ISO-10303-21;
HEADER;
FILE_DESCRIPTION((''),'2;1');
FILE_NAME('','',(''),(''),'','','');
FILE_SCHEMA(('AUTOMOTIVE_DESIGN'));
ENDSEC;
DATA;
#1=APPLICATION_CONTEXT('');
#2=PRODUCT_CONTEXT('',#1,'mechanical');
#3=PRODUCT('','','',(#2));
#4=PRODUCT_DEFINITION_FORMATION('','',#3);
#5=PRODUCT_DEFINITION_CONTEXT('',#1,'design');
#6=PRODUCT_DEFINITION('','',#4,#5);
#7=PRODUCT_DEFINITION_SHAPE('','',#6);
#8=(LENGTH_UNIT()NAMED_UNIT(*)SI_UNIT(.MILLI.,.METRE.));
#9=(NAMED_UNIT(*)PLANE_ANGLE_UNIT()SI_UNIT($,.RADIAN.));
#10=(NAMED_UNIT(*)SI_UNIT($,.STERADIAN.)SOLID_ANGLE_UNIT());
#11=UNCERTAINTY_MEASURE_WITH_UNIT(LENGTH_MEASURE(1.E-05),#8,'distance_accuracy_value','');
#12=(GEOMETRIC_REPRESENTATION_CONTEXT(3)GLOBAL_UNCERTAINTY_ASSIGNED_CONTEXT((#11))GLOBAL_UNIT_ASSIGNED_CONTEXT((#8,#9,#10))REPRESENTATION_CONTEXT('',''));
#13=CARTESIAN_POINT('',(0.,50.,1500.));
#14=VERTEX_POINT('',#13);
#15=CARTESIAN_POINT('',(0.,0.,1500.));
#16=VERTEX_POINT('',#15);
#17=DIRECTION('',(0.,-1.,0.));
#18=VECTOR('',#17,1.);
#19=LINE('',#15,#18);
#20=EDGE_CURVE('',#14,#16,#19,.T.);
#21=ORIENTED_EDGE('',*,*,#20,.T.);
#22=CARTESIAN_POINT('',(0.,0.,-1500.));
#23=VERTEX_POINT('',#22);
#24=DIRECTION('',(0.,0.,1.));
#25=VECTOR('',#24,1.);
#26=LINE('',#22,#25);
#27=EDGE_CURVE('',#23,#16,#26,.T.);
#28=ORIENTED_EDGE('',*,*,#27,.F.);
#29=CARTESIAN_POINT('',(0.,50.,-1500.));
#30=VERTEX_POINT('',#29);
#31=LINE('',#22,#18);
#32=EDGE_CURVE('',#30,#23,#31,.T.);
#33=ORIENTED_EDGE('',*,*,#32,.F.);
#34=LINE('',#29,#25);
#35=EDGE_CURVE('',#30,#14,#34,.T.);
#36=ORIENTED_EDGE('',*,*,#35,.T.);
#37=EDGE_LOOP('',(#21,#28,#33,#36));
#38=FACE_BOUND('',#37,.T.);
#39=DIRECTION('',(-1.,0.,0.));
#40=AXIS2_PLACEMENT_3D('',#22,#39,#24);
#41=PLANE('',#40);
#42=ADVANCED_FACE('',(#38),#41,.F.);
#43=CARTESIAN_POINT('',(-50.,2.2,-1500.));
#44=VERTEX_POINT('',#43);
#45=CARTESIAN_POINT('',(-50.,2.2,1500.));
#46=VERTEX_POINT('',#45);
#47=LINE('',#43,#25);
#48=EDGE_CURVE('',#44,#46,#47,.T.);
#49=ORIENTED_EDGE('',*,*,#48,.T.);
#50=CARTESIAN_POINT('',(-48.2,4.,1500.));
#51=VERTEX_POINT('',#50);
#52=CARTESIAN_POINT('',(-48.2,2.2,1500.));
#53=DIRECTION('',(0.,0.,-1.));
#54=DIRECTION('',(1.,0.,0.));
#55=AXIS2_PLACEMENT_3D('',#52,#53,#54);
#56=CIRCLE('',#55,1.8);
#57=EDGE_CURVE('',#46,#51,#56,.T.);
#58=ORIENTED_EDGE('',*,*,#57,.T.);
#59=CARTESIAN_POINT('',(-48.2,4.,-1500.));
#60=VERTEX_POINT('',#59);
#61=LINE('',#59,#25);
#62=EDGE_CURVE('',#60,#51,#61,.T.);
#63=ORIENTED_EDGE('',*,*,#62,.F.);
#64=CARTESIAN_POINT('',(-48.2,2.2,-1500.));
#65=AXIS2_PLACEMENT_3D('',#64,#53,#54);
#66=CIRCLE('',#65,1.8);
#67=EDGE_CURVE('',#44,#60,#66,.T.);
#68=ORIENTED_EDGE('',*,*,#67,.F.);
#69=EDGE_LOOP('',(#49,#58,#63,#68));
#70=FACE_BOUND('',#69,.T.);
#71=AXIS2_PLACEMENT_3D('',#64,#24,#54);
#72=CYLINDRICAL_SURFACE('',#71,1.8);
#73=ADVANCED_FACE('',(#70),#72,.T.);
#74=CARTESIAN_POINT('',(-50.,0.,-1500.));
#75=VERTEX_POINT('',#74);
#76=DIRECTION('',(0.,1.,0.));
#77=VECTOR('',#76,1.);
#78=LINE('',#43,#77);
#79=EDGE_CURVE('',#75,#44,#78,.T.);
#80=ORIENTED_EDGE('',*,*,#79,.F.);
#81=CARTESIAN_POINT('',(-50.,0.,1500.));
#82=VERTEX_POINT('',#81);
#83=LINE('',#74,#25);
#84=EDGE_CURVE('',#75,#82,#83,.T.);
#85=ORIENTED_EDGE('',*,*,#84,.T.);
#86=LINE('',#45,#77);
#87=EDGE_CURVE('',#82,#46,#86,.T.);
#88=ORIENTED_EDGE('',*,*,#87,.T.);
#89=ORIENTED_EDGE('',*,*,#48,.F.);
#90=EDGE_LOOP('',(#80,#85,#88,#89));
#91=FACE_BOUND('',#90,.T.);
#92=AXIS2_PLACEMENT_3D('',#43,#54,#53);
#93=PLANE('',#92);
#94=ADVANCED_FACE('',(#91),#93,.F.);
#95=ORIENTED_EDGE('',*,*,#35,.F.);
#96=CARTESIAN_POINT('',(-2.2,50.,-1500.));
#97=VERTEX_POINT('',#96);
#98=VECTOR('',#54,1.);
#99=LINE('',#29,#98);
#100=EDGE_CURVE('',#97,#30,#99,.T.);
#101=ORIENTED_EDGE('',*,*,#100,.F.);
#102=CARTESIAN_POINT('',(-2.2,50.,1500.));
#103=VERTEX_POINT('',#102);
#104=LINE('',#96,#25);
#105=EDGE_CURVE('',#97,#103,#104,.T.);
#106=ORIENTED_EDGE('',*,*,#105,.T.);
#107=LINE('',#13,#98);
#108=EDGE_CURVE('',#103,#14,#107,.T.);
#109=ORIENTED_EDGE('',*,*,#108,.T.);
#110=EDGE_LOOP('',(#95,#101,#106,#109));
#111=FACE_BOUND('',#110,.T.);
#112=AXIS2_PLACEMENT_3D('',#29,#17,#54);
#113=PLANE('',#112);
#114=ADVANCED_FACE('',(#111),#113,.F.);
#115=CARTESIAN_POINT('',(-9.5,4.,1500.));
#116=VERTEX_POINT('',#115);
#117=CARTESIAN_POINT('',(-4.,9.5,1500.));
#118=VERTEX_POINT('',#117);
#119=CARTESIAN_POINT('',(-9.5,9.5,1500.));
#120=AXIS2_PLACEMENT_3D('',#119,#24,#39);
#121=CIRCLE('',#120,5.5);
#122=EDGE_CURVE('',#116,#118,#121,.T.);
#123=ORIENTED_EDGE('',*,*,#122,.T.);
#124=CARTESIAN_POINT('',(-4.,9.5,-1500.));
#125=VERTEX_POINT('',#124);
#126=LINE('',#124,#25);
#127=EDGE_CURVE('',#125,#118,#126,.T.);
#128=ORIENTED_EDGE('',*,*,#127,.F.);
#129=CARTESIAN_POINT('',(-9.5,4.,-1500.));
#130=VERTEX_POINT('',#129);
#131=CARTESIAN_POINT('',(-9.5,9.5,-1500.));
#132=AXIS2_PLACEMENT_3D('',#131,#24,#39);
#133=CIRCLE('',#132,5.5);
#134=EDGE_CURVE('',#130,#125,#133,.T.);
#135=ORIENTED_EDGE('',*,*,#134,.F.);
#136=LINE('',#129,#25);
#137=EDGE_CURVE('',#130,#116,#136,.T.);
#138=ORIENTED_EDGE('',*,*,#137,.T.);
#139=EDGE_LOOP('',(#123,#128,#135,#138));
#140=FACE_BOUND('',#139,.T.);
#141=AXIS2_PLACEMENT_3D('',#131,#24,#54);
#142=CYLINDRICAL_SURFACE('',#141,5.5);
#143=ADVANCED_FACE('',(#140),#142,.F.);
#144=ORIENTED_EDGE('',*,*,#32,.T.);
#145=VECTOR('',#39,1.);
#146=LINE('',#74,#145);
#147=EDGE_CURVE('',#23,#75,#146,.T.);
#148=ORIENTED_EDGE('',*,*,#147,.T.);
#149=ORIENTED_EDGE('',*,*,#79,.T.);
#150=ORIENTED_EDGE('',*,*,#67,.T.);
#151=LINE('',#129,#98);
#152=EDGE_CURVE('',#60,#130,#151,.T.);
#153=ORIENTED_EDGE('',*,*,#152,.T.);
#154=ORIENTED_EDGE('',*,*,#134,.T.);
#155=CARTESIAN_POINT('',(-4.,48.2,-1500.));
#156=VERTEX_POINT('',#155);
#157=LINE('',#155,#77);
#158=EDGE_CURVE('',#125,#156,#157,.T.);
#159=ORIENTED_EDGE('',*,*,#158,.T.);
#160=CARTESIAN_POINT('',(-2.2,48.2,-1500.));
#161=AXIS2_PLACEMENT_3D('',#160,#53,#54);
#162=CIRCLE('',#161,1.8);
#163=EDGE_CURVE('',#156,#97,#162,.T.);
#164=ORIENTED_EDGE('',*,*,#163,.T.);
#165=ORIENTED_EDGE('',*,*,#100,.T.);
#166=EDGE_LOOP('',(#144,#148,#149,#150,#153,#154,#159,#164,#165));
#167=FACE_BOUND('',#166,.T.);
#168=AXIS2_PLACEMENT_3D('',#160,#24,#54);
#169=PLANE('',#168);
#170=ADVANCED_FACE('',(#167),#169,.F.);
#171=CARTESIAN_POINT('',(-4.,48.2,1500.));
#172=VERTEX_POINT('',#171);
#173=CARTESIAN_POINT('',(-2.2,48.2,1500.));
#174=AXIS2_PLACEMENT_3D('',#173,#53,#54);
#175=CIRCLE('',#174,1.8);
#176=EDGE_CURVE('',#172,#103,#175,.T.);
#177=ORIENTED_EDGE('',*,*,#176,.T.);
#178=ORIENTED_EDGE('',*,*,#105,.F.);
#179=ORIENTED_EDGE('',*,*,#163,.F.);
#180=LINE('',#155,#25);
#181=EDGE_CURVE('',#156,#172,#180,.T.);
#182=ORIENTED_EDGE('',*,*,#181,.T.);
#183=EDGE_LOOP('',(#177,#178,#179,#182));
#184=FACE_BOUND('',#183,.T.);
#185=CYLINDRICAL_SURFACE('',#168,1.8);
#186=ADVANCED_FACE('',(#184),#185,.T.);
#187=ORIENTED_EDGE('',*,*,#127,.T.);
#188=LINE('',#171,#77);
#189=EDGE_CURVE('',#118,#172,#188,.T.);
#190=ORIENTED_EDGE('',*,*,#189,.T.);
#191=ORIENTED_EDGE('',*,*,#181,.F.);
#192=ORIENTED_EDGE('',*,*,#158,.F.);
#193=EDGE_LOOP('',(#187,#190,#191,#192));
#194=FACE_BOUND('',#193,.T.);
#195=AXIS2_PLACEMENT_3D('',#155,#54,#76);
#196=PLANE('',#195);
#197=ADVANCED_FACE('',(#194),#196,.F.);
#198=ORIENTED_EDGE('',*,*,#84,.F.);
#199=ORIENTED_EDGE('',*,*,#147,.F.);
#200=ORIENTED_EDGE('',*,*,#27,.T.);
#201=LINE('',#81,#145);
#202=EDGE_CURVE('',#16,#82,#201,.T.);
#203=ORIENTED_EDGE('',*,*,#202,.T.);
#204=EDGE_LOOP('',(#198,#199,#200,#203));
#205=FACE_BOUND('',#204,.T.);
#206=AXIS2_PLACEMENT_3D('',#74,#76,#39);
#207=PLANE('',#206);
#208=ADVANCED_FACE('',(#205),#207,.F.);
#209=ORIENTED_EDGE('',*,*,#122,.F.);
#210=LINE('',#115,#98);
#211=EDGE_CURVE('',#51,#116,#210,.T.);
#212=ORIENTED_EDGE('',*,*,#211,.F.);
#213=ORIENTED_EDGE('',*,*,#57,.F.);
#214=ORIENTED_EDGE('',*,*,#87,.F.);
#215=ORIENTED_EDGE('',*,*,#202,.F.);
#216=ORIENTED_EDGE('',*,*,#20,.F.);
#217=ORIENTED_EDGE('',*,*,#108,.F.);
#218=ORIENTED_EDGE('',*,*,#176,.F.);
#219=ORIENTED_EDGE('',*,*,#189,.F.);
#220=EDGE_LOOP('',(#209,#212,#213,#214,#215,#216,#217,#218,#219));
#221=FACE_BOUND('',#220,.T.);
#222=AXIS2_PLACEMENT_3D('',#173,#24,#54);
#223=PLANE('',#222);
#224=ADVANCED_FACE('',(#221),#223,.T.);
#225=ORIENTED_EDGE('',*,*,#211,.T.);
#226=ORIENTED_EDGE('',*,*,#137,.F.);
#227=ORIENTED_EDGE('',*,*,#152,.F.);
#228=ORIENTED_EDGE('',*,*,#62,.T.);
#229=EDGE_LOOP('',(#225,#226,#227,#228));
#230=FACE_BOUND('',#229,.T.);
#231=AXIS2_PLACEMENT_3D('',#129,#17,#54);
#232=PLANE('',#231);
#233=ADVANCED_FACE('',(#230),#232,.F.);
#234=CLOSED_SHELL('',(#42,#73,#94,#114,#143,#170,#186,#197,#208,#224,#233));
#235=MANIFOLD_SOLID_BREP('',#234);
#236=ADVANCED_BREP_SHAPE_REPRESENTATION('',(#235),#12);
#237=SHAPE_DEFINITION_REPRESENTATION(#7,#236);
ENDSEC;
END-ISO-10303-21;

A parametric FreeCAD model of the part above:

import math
import FreeCAD as App
import Part
import Sketcher
Q = App.Units.Quantity

doc = App.newDocument("Part")
body = doc.addObject("PartDesign::Body", "Body")

# Sketch on XY plane
sketch1 = body.newObject("Sketcher::SketchObject", "Sketch")
sketch1.AttachmentSupport = (doc.getObject("XY_Plane"), [""])
sketch1.MapMode = "FlatFace"
sketch1.addGeometry([
    Part.LineSegment(App.Vector(0, 50, 0), App.Vector(0, 0, 0)),  # 0
    Part.LineSegment(App.Vector(0, 0, 0), App.Vector(-50, 0, 0)),  # 1
    Part.LineSegment(App.Vector(-50, 0, 0), App.Vector(-50, 2.2, 0)),  # 2
    Part.ArcOfCircle(Part.Circle(App.Vector(-48.2, 2.2, 0), App.Vector(0, 0, 1), 1.8), math.radians(90), math.radians(180)),  # 3
    Part.LineSegment(App.Vector(-48.2, 4, 0), App.Vector(-9.5, 4, 0)),  # 4
    Part.ArcOfCircle(Part.Circle(App.Vector(-9.5, 9.5, 0), App.Vector(0, 0, 1), 5.5), math.radians(-90), math.radians(0)),  # 5
    Part.LineSegment(App.Vector(-4, 9.5, 0), App.Vector(-4, 48.2, 0)),  # 6
    Part.ArcOfCircle(Part.Circle(App.Vector(-2.2, 48.2, 0), App.Vector(0, 0, 1), 1.8), math.radians(90), math.radians(180)),  # 7
    Part.LineSegment(App.Vector(-2.2, 50, 0), App.Vector(0, 50, 0)),  # 8
], False)
sketch1.addConstraint([
    Sketcher.Constraint("Coincident", 0, 2, 1, 1),
    Sketcher.Constraint("Coincident", 1, 2, 2, 1),
    Sketcher.Constraint("Tangent", 2, 2, 3, 2),
    Sketcher.Constraint("Tangent", 3, 1, 4, 1),
    Sketcher.Constraint("Tangent", 4, 2, 5, 1),
    Sketcher.Constraint("Tangent", 5, 2, 6, 1),
    Sketcher.Constraint("Tangent", 6, 2, 7, 2),
    Sketcher.Constraint("Tangent", 7, 1, 8, 1),
    Sketcher.Constraint("Coincident", 8, 2, 0, 1),
    Sketcher.Constraint("Vertical", 0),
    Sketcher.Constraint("Horizontal", 1),
    Sketcher.Constraint("Vertical", 2),
    Sketcher.Constraint("Horizontal", 4),
    Sketcher.Constraint("Vertical", 6),
    Sketcher.Constraint("Horizontal", 8),
    Sketcher.Constraint("Coincident", 0, 2, -1, 1),
    Sketcher.Constraint("Equal", 3, 7),
    Sketcher.Constraint("Equal", 1, 0),
    Sketcher.Constraint("Equal", 8, 2),
    Sketcher.Constraint("Radius", 3, Q("1.8 mm")),
    Sketcher.Constraint("Radius", 5, Q("5.5 mm")),
    Sketcher.Constraint("DistanceX", 1, 2, 1, 1, Q("50 mm")),
    Sketcher.Constraint("DistanceX", 4, 1, 4, 2, Q("38.7 mm")),
])
pad1 = body.newObject("PartDesign::Pad", "Pad")
pad1.Profile = sketch1
pad1.Length = 3000
pad1.Midplane = True

doc.recompute()
